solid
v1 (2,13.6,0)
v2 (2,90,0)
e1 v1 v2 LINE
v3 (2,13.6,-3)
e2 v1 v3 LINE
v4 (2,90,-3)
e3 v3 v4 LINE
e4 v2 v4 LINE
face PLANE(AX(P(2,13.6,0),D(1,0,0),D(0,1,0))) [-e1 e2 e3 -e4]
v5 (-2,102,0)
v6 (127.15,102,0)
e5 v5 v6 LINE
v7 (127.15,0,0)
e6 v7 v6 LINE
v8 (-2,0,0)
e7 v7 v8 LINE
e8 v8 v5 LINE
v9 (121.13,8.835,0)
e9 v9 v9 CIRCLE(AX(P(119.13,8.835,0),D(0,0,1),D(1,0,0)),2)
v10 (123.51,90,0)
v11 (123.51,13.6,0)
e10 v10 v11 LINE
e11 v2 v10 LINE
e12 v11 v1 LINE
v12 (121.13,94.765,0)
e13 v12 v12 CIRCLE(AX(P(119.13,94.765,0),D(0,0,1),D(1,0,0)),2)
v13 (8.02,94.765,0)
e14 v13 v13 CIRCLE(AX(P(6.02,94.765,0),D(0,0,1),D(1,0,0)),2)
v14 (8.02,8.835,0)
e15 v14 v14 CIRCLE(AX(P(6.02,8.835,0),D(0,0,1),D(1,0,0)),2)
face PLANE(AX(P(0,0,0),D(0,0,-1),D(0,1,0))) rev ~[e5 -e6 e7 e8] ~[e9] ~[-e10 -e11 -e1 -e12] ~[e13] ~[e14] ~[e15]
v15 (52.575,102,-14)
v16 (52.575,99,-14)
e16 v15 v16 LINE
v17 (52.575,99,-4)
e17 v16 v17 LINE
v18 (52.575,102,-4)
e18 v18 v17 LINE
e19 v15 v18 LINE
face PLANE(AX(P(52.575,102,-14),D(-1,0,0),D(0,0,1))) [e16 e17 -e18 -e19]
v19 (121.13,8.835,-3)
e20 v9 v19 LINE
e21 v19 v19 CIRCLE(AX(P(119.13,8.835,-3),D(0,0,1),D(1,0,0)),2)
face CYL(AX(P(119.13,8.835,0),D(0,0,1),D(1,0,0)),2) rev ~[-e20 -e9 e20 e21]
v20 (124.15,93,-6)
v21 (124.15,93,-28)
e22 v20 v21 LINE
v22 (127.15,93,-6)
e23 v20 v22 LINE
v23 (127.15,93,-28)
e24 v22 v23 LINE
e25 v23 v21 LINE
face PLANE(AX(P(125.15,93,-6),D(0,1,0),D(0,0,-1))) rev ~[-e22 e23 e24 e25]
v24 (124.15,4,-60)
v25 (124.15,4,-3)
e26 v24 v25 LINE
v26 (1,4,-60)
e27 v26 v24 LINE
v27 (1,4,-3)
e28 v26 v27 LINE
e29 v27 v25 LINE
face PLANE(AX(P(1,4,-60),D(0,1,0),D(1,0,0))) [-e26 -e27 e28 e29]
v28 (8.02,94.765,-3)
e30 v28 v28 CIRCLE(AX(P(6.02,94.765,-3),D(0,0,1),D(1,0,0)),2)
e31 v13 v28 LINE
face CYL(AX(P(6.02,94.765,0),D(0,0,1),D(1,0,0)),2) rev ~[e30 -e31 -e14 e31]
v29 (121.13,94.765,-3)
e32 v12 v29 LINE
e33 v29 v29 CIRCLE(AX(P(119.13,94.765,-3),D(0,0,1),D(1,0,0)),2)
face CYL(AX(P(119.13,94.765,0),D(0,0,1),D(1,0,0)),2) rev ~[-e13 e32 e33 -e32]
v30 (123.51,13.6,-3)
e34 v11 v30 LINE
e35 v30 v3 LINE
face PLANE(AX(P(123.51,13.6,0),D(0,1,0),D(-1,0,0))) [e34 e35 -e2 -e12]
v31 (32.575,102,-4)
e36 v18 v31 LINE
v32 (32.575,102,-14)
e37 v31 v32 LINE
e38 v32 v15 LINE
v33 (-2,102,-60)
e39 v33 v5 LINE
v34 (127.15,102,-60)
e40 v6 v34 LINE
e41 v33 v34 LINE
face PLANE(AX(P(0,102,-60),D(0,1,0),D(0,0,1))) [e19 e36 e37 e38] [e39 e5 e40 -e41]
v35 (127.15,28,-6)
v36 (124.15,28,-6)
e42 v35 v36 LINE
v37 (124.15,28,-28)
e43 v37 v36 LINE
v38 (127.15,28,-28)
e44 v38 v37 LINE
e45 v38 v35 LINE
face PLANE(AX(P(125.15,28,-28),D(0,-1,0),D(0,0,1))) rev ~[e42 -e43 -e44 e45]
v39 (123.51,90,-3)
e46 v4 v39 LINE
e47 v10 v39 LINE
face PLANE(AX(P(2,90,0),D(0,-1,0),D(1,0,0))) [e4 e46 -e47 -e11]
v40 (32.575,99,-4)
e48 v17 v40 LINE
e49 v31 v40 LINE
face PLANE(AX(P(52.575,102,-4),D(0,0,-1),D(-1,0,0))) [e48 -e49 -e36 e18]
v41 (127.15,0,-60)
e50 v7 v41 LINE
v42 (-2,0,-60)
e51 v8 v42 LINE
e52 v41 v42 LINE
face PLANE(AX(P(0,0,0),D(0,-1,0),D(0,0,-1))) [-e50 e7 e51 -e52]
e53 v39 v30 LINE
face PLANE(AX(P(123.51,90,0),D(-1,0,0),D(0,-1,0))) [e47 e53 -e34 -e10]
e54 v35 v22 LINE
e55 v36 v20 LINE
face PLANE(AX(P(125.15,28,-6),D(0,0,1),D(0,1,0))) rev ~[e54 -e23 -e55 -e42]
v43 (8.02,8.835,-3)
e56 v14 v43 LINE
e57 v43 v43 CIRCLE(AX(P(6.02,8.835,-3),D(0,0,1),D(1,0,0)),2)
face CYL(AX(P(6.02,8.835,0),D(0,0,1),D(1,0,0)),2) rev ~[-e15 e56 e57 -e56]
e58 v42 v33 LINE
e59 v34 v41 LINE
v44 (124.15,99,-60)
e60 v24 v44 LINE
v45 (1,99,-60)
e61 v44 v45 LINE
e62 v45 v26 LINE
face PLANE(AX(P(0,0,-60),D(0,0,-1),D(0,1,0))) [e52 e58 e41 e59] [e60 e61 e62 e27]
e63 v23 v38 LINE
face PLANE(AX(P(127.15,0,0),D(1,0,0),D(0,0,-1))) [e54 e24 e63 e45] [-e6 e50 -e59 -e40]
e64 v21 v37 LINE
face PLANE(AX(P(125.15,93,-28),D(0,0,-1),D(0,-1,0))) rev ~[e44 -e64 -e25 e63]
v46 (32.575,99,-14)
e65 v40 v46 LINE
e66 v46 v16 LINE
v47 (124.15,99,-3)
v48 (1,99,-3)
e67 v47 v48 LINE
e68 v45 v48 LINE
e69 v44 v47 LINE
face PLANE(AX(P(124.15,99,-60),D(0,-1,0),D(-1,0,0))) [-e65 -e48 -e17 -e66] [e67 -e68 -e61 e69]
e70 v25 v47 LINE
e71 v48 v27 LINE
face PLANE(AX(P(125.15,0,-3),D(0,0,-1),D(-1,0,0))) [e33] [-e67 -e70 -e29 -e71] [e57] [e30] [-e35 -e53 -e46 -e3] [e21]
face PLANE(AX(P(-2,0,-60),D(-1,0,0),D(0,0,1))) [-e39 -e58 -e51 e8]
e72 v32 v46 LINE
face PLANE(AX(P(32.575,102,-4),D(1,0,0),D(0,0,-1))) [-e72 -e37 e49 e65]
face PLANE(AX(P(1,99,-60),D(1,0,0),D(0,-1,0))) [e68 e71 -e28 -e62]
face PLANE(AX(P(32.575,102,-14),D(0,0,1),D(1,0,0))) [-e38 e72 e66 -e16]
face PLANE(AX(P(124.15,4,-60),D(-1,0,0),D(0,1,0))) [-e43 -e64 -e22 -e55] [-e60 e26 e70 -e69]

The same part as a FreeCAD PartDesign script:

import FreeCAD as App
import Part
import Sketcher
from FreeCAD import Vector


def add_polygon(sketch, points):
    """Adds a closed chain of lines whose ends are joined by coincident constraints."""
    first, n = sketch.GeometryCount, len(points)
    for a, b in zip(points, points[1:] + points[:1]):
        sketch.addGeometry(Part.LineSegment(App.Vector(*a, 0), App.Vector(*b, 0)), False)
    for i in range(n):
        sketch.addConstraint(Sketcher.Constraint("Coincident", first + i, 2, first + (i + 1) % n, 1))

doc = App.newDocument("Part")
body = doc.addObject("PartDesign::Body", "Body")

# Sketch on XZ plane
sketch1 = body.newObject("Sketcher::SketchObject", "Sketch")
sketch1.AttachmentSupport = (doc.getObject("XZ_Plane"), [""])
sketch1.MapMode = "FlatFace"
add_polygon(sketch1, [(0, -60), (0, 0), (125, 0), (125, -60)])  # lines 0-3
sketch1.addConstraint([
    Sketcher.Constraint("Vertical", 0),
    Sketcher.Constraint("Horizontal", 1),
    Sketcher.Constraint("Vertical", 2),
    Sketcher.Constraint("Horizontal", 3),
    Sketcher.Constraint("Coincident", 0, 2, -1, 1),
    Sketcher.Constraint("DistanceY", 0, 1, 0, 2, 60.0),
    Sketcher.Constraint("DistanceX", 1, 1, 1, 2, 125.15),
])
pad1 = body.newObject("PartDesign::Pad", "Pad")
pad1.Profile = sketch1
pad1.Length = 100
pad1.Reversed = True

# Sketch on XY plane
sketch2 = body.newObject("Sketcher::SketchObject", "Sketch001")
sketch2.AttachmentSupport = (doc.getObject("XY_Plane"), [""])
sketch2.MapMode = "FlatFace"
add_polygon(sketch2, [(123.5, 90), (2, 90), (2, 13.6), (123.5, 13.6)])  # lines 0-3
sketch2.addGeometry(Part.Circle(Vector(6, 94.8, 0), Vector(0, 0, 1), 2), False)  # 4
sketch2.addGeometry(Part.Circle(Vector(6, 8.8, 0), Vector(0, 0, 1), 2), False)  # 5
sketch2.addGeometry(Part.Circle(Vector(119.1, 94.8, 0), Vector(0, 0, 1), 2), False)  # 6
sketch2.addGeometry(Part.Circle(Vector(119.1, 8.8, 0), Vector(0, 0, 1), 2), False)  # 7
sketch2.addConstraint([
    Sketcher.Constraint("Horizontal", 0),
    Sketcher.Constraint("Vertical", 1),
    Sketcher.Constraint("Horizontal", 2),
    Sketcher.Constraint("Vertical", 3),
    Sketcher.Constraint("Equal", 4, 5),
    Sketcher.Constraint("Equal", 5, 6),
    Sketcher.Constraint("Equal", 6, 7),
    Sketcher.Constraint("Horizontal", 4, 3, 6, 3),
    Sketcher.Constraint("Horizontal", 5, 3, 7, 3),
    Sketcher.Constraint("Vertical", 4, 3, 5, 3),
    Sketcher.Constraint("Vertical", 6, 3, 7, 3),
    Sketcher.Constraint("Diameter", 4, 4.0),
    Sketcher.Constraint("DistanceY", 1, 2, 1, 1, 76.4),
    Sketcher.Constraint("DistanceX", -1, 1, 0, 2, 2.0),
    Sketcher.Constraint("DistanceX", 0, 2, 0, 1, 121.51),
    Sketcher.Constraint("DistanceX", -1, 1, 4, 3, 6.02),
    Sketcher.Constraint("DistanceY", 5, 3, 4, 3, 85.93),
    Sketcher.Constraint("DistanceX", 4, 3, 6, 3, 113.11),
    Sketcher.Constraint("DistanceY", -1, 1, 0, 2, 90.0),
    Sketcher.Constraint("DistanceY", 0, 2, 4, 3, 4.765),
])
pocket1 = body.newObject("PartDesign::Pocket", "Pocket")
pocket1.Profile = sketch2
pocket1.Length = 3

# Sketch on YZ plane
sketch3 = body.newObject("Sketcher::SketchObject", "Sketch002")
sketch3.AttachmentSupport = (doc.getObject("YZ_Plane"), [""])
sketch3.MapMode = "FlatFace"
sketch3.AttachmentOffset = App.Placement(Vector(0, 0, 125.15), App.Rotation())
add_polygon(sketch3, [(93, -28), (93, -6), (28, -6), (28, -28)])  # lines 0-3
sketch3.addConstraint([
    Sketcher.Constraint("Vertical", 0),
    Sketcher.Constraint("Horizontal", 1),
    Sketcher.Constraint("Vertical", 2),
    Sketcher.Constraint("Horizontal", 3),
    Sketcher.Constraint("DistanceX", 1, 2, 1, 1, 65.0),
    Sketcher.Constraint("DistanceY", 0, 1, 0, 2, 22.0),
    Sketcher.Constraint("DistanceY", 0, 2, -1, 1, 6.0),
    Sketcher.Constraint("DistanceX", -1, 1, 0, 2, 93.0),
])
pocket2 = body.newObject("PartDesign::Pocket", "Pocket001")
pocket2.Profile = sketch3
pocket2.Length = 10

# Sketch on XY plane
sketch4 = body.newObject("Sketcher::SketchObject", "Sketch003")
sketch4.AttachmentSupport = (doc.getObject("XY_Plane"), [""])
sketch4.MapMode = "FlatFace"
sketch4.AttachmentOffset = App.Placement(Vector(0, 0, -60), App.Rotation())
add_polygon(sketch4, [(1, 99), (124, 99), (124, 4), (1, 4)])  # lines 0-3
sketch4.addConstraint([
    Sketcher.Constraint("Horizontal", 0),
    Sketcher.Constraint("Vertical", 1),
    Sketcher.Constraint("Horizontal", 2),
    Sketcher.Constraint("Vertical", 3),
    Sketcher.Constraint("DistanceY", -1, 1, 1, 2, 4.0),
    Sketcher.Constraint("DistanceX", -1, 1, 2, 2, 1.0),
    Sketcher.Constraint("DistanceY", 1, 2, 1, 1, 95.0),
    Sketcher.Constraint("DistanceX", 0, 1, 0, 2, 123.15),
])
pocket3 = body.newObject("PartDesign::Pocket", "Pocket002")
pocket3.Profile = sketch4
pocket3.Length = 57
pocket3.Reversed = True

# Sketch on XZ plane
sketch5 = body.newObject("Sketcher::SketchObject", "Sketch004")
sketch5.AttachmentSupport = (doc.getObject("XZ_Plane"), [""])
sketch5.MapMode = "FlatFace"
sketch5.AttachmentOffset = App.Placement(Vector(0, 0, -100), App.Rotation())
add_polygon(sketch5, [(0, 0), (125, 0), (125, -60), (0, -60)])  # lines 0-3
sketch5.addConstraint([
    Sketcher.Constraint("Horizontal", 0),
    Sketcher.Constraint("Vertical", 1),
    Sketcher.Constraint("Horizontal", 2),
    Sketcher.Constraint("Vertical", 3),
    Sketcher.Constraint("Coincident", 3, 2, -1, 1),
    Sketcher.Constraint("DistanceY", 1, 2, 1, 1, 60.0),
    Sketcher.Constraint("DistanceX", 0, 1, 0, 2, 125.15),
])
pad2 = body.newObject("PartDesign::Pad", "Pad001")
pad2.Profile = sketch5
pad2.Length = 2
pad2.Reversed = True

# Sketch on YZ plane
sketch6 = body.newObject("Sketcher::SketchObject", "Sketch005")
sketch6.AttachmentSupport = (doc.getObject("YZ_Plane"), [""])
sketch6.MapMode = "FlatFace"
sketch6.AttachmentOffset = App.Placement(Vector(0, 0, 125.15), App.Rotation())
add_polygon(sketch6, [(102, 0), (0, 0), (0, -60), (102, -60)])  # lines 0-3
add_polygon(sketch6, [(28, -6), (93, -6), (93, -28), (28, -28)])  # lines 4-7
sketch6.addConstraint([
    Sketcher.Constraint("Horizontal", 0),
    Sketcher.Constraint("Vertical", 1),
    Sketcher.Constraint("Horizontal", 2),
    Sketcher.Constraint("Vertical", 3),
    Sketcher.Constraint("Horizontal", 4),
    Sketcher.Constraint("Vertical", 5),
    Sketcher.Constraint("Horizontal", 6),
    Sketcher.Constraint("Vertical", 7),
    Sketcher.Constraint("Coincident", 0, 2, -1, 1),
    Sketcher.Constraint("DistanceX", 0, 2, 0, 1, 102.0),
    Sketcher.Constraint("DistanceX", 4, 1, 4, 2, 65.0),
    Sketcher.Constraint("DistanceY", 1, 2, 1, 1, 60.0),
    Sketcher.Constraint("DistanceY", 5, 2, 5, 1, 22.0),
    Sketcher.Constraint("DistanceX", -1, 1, 4, 2, 93.0),
    Sketcher.Constraint("DistanceY", 4, 2, -1, 1, 6.0),
])
pad3 = body.newObject("PartDesign::Pad", "Pad002")
pad3.Profile = sketch6
pad3.Length = 2

# Sketch on YZ plane
sketch7 = body.newObject("Sketcher::SketchObject", "Sketch006")
sketch7.AttachmentSupport = (doc.getObject("YZ_Plane"), [""])
sketch7.MapMode = "FlatFace"
add_polygon(sketch7, [(102, -60), (0, -60), (0, 0), (102, 0)])  # lines 0-3
sketch7.addConstraint([
    Sketcher.Constraint("Horizontal", 0),
    Sketcher.Constraint("Vertical", 1),
    Sketcher.Constraint("Horizontal", 2),
    Sketcher.Constraint("Vertical", 3),
    Sketcher.Constraint("Coincident", 1, 2, -1, 1),
    Sketcher.Constraint("DistanceX", 0, 2, 0, 1, 102.0),
    Sketcher.Constraint("DistanceY", 1, 1, 1, 2, 60.0),
])
pad4 = body.newObject("PartDesign::Pad", "Pad003")
pad4.Profile = sketch7
pad4.Length = 2
pad4.Reversed = True

# Sketch on XZ plane
sketch8 = body.newObject("Sketcher::SketchObject", "Sketch007")
sketch8.AttachmentSupport = (doc.getObject("XZ_Plane"), [""])
sketch8.MapMode = "FlatFace"
sketch8.AttachmentOffset = App.Placement(Vector(0, 0, -102), App.Rotation())
add_polygon(sketch8, [(53, -14), (33, -14), (33, -4), (53, -4)])  # lines 0-3
sketch8.addConstraint([
    Sketcher.Constraint("Horizontal", 0),
    Sketcher.Constraint("Vertical", 1),
    Sketcher.Constraint("Horizontal", 2),
    Sketcher.Constraint("Vertical", 3),
    Sketcher.Constraint("DistanceX", 0, 2, 0, 1, 20.0),
    Sketcher.Constraint("DistanceY", 1, 1, 1, 2, 10.0),
    Sketcher.Constraint("DistanceY", 1, 2, -1, 1, 4.0),
    Sketcher.Constraint("DistanceX", -1, 1, 0, 2, 32.575),
])
pocket4 = body.newObject("PartDesign::Pocket", "Pocket003")
pocket4.Profile = sketch8
pocket4.Length = 3
pocket4.Reversed = True

doc.recompute()
